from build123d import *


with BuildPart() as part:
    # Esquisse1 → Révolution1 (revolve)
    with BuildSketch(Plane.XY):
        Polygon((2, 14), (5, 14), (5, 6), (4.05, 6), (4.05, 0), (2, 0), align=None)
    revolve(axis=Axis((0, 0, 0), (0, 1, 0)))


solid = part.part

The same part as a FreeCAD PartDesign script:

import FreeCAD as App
import Part
import Sketcher

V = App.Vector


def add_polygon(sketch, points):
    """Adds a closed chain of lines whose ends are joined by coincident constraints."""
    first, n = sketch.GeometryCount, len(points)
    for a, b in zip(points, points[1:] + points[:1]):
        sketch.addGeometry(Part.LineSegment(App.Vector(*a, 0), App.Vector(*b, 0)), False)
    for i in range(n):
        sketch.addConstraint(Sketcher.Constraint("Coincident", first + i, 2, first + (i + 1) % n, 1))

doc = App.newDocument("Part")
params = doc.addObject("Spreadsheet::Sheet", "Params")
for row, (alias, value) in enumerate([
    ("sketch1_width", "3 mm"),
    ("sketch1_height", "14 mm"),
    ("sketch1_height2", "6 mm"),
    ("sketch1_width2", "2.05 mm"),
    ("revolution_angle", "360 deg"),
], start=1):
    params.set(f"A{row}", alias)
    params.set(f"B{row}", "=" + value)
    params.setAlias(f"B{row}", alias)

body = doc.addObject("PartDesign::Body", "Body")

sketch1 = body.newObject("Sketcher::SketchObject", "Sketch")
sketch1.AttachmentSupport = (doc.getObject("XY_Plane"), [""])
sketch1.MapMode = "FlatFace"
add_polygon(sketch1, [(5, 14), (2, 14), (2, 0), (4, 0), (4, 6), (5, 6)])
sketch1.addConstraint(Sketcher.Constraint("Horizontal", 0))
sketch1.addConstraint(Sketcher.Constraint("Vertical", 1))
sketch1.addConstraint(Sketcher.Constraint("Horizontal", 2))
sketch1.addConstraint(Sketcher.Constraint("Vertical", 3))
sketch1.addConstraint(Sketcher.Constraint("Horizontal", 4))
sketch1.addConstraint(Sketcher.Constraint("Vertical", 5))
sketch1.addConstraint(Sketcher.Constraint("PointOnObject", 1, 2, -1))
sketch1.addConstraint(Sketcher.Constraint("DistanceX", 0, 2, 0, 1, 3.0))
sketch1.addConstraint(Sketcher.Constraint("DistanceY", 1, 2, 1, 1, 14.0))
sketch1.addConstraint(Sketcher.Constraint("DistanceY", 3, 1, 3, 2, 6.0))
sketch1.addConstraint(Sketcher.Constraint("DistanceX", -1, 1, 0, 2, 2.0))
sketch1.addConstraint(Sketcher.Constraint("DistanceX", 2, 1, 2, 2, 2.05))
sketch1.setExpression("Constraints[13]", "Params.sketch1_width")
sketch1.setExpression("Constraints[14]", "Params.sketch1_height")
sketch1.setExpression("Constraints[15]", "Params.sketch1_height2")
sketch1.setExpression("Constraints[17]", "Params.sketch1_width2")
revolution = body.newObject("PartDesign::Revolution", "Revolution")
revolution.Profile = sketch1
revolution.ReferenceAxis = (sketch1, ["V_Axis"])
revolution.setExpression("Angle", "Params.revolution_angle")

doc.recompute()
